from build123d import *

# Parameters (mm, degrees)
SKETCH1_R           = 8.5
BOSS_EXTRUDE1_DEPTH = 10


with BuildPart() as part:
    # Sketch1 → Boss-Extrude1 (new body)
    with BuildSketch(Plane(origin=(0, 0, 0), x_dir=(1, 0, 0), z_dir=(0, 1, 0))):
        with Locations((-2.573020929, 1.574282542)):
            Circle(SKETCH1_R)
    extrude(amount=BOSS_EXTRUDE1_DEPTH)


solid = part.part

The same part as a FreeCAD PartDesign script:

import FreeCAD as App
import Part
import Sketcher

V = App.Vector

doc = App.newDocument("Part")
params = doc.addObject("Spreadsheet::Sheet", "Params")
for row, (alias, value) in enumerate([
    ("sketch1_diameter", "17 mm"),
    ("pad1_length", "10 mm"),
], start=1):
    params.set(f"A{row}", alias)
    params.set(f"B{row}", "=" + value)
    params.setAlias(f"B{row}", alias)

body = doc.addObject("PartDesign::Body", "Body")

# Sketch on XZ plane
sketch1 = doc.addObject("Sketcher::SketchObject", "Sketch")
body.addObject(sketch1)
sketch1.AttachmentSupport = (doc.XZ_Plane, [""])
sketch1.MapMode = "FlatFace"
sketch1.addGeometry(Part.Circle(V(-3, -2, 0), V(0, 0, 1), 8), False)
sketch1.addConstraint([
    Sketcher.Constraint("Diameter", 0, 17.0),
    Sketcher.Constraint("DistanceX", 0, 3, -1, 1, 2.573021),
    Sketcher.Constraint("DistanceY", 0, 3, -1, 1, 1.574283),
])
sketch1.setExpression("Constraints[0]", "Params.sketch1_diameter")
pad1 = doc.addObject("PartDesign::Pad", "Pad")
body.addObject(pad1)
pad1.Profile = sketch1
pad1.setExpression("Length", "Params.pad1_length")
pad1.Reversed = True

doc.recompute()
